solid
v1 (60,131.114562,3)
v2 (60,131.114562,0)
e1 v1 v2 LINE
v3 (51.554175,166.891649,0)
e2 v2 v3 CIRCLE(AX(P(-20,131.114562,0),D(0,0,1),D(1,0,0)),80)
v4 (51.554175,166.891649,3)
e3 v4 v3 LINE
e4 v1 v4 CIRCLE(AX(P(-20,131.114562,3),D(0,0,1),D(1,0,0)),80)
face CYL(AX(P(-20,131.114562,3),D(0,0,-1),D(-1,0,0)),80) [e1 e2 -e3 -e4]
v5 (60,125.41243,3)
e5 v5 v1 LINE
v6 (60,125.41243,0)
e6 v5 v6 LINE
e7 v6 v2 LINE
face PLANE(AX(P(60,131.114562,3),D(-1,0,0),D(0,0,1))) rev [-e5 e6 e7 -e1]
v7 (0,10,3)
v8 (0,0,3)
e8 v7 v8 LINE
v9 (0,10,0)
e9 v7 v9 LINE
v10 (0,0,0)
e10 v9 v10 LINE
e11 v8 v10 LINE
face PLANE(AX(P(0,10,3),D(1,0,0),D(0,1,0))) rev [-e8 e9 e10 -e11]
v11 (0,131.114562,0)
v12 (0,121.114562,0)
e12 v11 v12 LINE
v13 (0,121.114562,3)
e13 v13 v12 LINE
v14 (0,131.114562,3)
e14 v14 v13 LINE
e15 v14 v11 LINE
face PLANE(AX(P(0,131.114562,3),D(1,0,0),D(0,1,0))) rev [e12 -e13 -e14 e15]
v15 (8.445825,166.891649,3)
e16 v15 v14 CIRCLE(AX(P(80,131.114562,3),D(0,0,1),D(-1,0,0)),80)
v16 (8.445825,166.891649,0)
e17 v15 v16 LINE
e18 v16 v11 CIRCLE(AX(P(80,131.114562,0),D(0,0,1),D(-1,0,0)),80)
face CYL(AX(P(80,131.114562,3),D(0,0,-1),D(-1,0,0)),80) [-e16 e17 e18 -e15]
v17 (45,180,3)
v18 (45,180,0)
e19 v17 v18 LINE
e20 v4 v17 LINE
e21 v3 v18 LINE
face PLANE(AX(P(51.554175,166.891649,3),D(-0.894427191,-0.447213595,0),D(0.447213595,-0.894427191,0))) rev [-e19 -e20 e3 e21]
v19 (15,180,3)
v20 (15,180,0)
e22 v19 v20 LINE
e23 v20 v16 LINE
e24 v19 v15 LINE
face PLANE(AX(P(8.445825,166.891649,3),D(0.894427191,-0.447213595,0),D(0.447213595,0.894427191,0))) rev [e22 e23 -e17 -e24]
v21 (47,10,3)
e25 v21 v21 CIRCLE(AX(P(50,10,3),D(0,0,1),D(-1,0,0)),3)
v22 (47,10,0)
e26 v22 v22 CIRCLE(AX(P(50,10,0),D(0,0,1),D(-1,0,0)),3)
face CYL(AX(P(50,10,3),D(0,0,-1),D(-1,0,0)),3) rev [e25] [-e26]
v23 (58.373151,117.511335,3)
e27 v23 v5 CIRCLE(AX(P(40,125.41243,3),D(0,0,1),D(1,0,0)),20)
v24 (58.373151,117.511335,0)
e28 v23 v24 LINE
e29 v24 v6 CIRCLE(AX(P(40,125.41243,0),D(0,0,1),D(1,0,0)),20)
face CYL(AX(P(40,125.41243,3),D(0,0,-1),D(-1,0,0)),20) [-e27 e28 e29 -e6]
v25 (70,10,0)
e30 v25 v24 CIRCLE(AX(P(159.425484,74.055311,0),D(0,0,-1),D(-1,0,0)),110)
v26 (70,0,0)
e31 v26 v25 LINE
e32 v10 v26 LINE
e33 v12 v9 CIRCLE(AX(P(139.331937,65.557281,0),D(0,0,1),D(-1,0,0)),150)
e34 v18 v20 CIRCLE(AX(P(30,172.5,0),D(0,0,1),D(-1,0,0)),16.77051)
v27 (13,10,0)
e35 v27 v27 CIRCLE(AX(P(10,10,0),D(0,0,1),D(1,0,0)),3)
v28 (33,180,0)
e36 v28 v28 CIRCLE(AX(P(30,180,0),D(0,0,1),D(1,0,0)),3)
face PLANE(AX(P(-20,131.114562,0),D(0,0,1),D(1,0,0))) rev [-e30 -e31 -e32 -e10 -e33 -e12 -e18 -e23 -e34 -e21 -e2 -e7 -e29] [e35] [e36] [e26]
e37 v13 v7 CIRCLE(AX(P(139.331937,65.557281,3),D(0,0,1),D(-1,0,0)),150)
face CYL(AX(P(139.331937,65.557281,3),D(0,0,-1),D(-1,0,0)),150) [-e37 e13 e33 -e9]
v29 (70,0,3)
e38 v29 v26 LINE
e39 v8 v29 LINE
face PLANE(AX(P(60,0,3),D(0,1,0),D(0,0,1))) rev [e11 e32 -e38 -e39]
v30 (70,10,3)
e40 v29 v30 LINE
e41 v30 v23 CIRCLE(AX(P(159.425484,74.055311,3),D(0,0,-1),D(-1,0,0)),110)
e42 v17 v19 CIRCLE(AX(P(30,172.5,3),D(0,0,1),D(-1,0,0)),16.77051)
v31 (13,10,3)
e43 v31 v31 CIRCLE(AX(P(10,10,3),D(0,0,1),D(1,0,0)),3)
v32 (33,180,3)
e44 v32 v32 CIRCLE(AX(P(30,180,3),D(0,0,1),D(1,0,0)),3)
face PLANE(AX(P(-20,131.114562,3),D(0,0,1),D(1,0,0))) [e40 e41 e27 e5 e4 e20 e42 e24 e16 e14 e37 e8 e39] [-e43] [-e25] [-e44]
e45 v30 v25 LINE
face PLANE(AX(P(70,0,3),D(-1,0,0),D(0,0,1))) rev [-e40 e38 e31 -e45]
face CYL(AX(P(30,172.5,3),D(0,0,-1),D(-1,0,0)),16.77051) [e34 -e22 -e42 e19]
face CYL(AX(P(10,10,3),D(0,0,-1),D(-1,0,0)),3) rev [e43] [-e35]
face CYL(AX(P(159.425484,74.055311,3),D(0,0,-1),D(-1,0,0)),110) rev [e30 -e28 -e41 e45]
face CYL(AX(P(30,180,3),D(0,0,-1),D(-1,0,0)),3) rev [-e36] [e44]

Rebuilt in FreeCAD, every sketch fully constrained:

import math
import FreeCAD as App
import Part
import Sketcher

V = App.Vector

doc = App.newDocument("Part")
body = doc.addObject("PartDesign::Body", "Body")

# Sketch on XY plane
sketch1 = doc.addObject("Sketcher::SketchObject", "Sketch")
body.addObject(sketch1)
sketch1.AttachmentSupport = (doc.XY_Plane, [""])
sketch1.MapMode = "FlatFace"
sketch1.addGeometry([
    Part.LineSegment(V(15, 180, 0), V(8.445825, 166.891649, 0)),  # 0
    Part.ArcOfCircle(Part.Circle(V(80, 131.114562, 0), V(0, 0, 1), 80), math.radians(153.434949), math.radians(180)),  # 1
    Part.LineSegment(V(0, 131.114562, 0), V(0, 121.114562, 0)),  # 2
    Part.ArcOfCircle(Part.Circle(V(139.331937, 65.557281, 0), V(0, 0, 1), 150), math.radians(158.26083), math.radians(201.73917)),  # 3
    Part.LineSegment(V(0, 10, 0), V(0, 0, 0)),  # 4
    Part.LineSegment(V(0, 0, 0), V(70, 0, 0)),  # 5
    Part.LineSegment(V(70, 0, 0), V(70, 10, 0)),  # 6
    Part.ArcOfCircle(Part.Circle(V(159.425484, 74.055311, 0), V(0, 0, 1), 110), math.radians(156.73061), math.radians(215.613956)),  # 7
    Part.ArcOfCircle(Part.Circle(V(40, 125.41243, 0), V(0, 0, 1), 20), math.radians(-23.26939), math.radians(0)),  # 8
    Part.LineSegment(V(60, 125.41243, 0), V(60, 131.114562, 0)),  # 9
    Part.ArcOfCircle(Part.Circle(V(-20, 131.114562, 0), V(0, 0, 1), 80), math.radians(0), math.radians(26.565051)),  # 10
    Part.LineSegment(V(51.554175, 166.891649, 0), V(45, 180, 0)),  # 11
    Part.ArcOfCircle(Part.Circle(V(30, 172.5, 0), V(0, 0, 1), 16.77051), math.radians(26.565051), math.radians(153.434949)),  # 12
    Part.Circle(V(50, 10, 0), V(0, 0, 1), 3),  # 13
    Part.Circle(V(10, 10, 0), V(0, 0, 1), 3),  # 14
    Part.Circle(V(30, 180, 0), V(0, 0, 1), 3),  # 15
], False)
sketch1.addConstraint([
    Sketcher.Constraint("Tangent", 0, 2, 1, 1),
    Sketcher.Constraint("Tangent", 1, 2, 2, 1),
    Sketcher.Constraint("Coincident", 2, 2, 3, 1),
    Sketcher.Constraint("Coincident", 3, 2, 4, 1),
    Sketcher.Constraint("Coincident", 4, 2, 5, 1),
    Sketcher.Constraint("Coincident", 5, 2, 6, 1),
    Sketcher.Constraint("Coincident", 6, 2, 7, 2),
    Sketcher.Constraint("Tangent", 7, 1, 8, 1),
    Sketcher.Constraint("Tangent", 8, 2, 9, 1),
    Sketcher.Constraint("Tangent", 9, 2, 10, 1),
    Sketcher.Constraint("Tangent", 10, 2, 11, 1),
    Sketcher.Constraint("Tangent", 11, 2, 12, 1),
    Sketcher.Constraint("Tangent", 12, 2, 0, 1),
    Sketcher.Constraint("Vertical", 2),
    Sketcher.Constraint("Vertical", 4),
    Sketcher.Constraint("Horizontal", 5),
    Sketcher.Constraint("Vertical", 6),
    Sketcher.Constraint("Vertical", 9),
    Sketcher.Constraint("Coincident", 4, 2, -1, 1),
    Sketcher.Constraint("Equal", 1, 10),
    Sketcher.Constraint("Equal", 13, 14),
    Sketcher.Constraint("Equal", 14, 15),
    Sketcher.Constraint("PointOnObject", 1, 2, -2),
    Sketcher.Constraint("Horizontal", 1, 3, 10, 3),
    Sketcher.Constraint("Horizontal", 13, 3, 14, 3),
    Sketcher.Constraint("Horizontal", 14, 3, 3, 2),
    Sketcher.Constraint("Horizontal", 3, 2, 6, 2),
    Sketcher.Constraint("Horizontal", 0, 2, 10, 2),
    Sketcher.Constraint("Horizontal", 15, 3, 11, 2),
    Sketcher.Constraint("Vertical", 12, 3, 15, 3),
    Sketcher.Constraint("Equal", 2, 4),
    Sketcher.Constraint("Diameter", 13, 6.0),
    Sketcher.Constraint("Radius", 1, 80.0),
    Sketcher.Constraint("Radius", 3, 150.0),
    Sketcher.Constraint("Radius", 7, 110.0),
    Sketcher.Constraint("Radius", 8, 20.0),
    Sketcher.Constraint("DistanceX", 5, 1, 5, 2, 70.0),
    Sketcher.Constraint("DistanceY", 2, 2, 2, 1, 10.0),
    Sketcher.Constraint("DistanceX", -1, 1, 8, 3, 40.0),
    Sketcher.Constraint("DistanceX", -1, 1, 13, 3, 50.0),
    Sketcher.Constraint("DistanceX", -1, 1, 14, 3, 10.0),
    Sketcher.Constraint("DistanceY", -1, 1, 15, 3, 180.0),
    Sketcher.Constraint("DistanceX", -1, 1, 11, 2, 45.0),
    Sketcher.Constraint("DistanceY", -1, 1, 12, 3, 172.5),
    Sketcher.Constraint("DistanceY", 9, 1, 9, 2, 5.702131),
])
pad1 = doc.addObject("PartDesign::Pad", "Pad")
body.addObject(pad1)
pad1.Profile = sketch1
pad1.Length = 3

doc.recompute()
